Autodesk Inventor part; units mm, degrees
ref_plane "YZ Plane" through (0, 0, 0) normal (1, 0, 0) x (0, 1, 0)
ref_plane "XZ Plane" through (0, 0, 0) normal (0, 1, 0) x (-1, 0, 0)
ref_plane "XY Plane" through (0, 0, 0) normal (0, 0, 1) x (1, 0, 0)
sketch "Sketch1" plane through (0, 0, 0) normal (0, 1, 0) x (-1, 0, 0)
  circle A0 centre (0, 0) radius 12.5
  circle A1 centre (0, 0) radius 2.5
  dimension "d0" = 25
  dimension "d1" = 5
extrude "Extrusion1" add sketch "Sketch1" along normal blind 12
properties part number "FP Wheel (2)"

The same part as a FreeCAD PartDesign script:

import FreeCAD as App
import Part
import Sketcher

doc = App.newDocument("Part")
body = doc.addObject("PartDesign::Body", "Body")

# Sketch on XZ plane
sketch1 = doc.addObject("Sketcher::SketchObject", "Sketch")
body.addObject(sketch1)
sketch1.AttachmentSupport = (doc.XZ_Plane, [""])
sketch1.MapMode = "FlatFace"
sketch1.addGeometry([
    Part.Circle(App.Vector(0, 0, 0), App.Vector(0, 0, 1), 12.5),
    Part.Circle(App.Vector(0, 0, 0), App.Vector(0, 0, 1), 2.5),
], False)
sketch1.addConstraint([
    Sketcher.Constraint("Coincident", 0, 3, -1, 1),
    Sketcher.Constraint("Coincident", 1, 3, -1, 1),
    Sketcher.Constraint("Diameter", 0, 25.0),
    Sketcher.Constraint("Diameter", 1, 5.0),
])
pad1 = doc.addObject("PartDesign::Pad", "Pad")
body.addObject(pad1)
pad1.Profile = sketch1
pad1.Length = 12
pad1.Reversed = True

doc.recompute()
